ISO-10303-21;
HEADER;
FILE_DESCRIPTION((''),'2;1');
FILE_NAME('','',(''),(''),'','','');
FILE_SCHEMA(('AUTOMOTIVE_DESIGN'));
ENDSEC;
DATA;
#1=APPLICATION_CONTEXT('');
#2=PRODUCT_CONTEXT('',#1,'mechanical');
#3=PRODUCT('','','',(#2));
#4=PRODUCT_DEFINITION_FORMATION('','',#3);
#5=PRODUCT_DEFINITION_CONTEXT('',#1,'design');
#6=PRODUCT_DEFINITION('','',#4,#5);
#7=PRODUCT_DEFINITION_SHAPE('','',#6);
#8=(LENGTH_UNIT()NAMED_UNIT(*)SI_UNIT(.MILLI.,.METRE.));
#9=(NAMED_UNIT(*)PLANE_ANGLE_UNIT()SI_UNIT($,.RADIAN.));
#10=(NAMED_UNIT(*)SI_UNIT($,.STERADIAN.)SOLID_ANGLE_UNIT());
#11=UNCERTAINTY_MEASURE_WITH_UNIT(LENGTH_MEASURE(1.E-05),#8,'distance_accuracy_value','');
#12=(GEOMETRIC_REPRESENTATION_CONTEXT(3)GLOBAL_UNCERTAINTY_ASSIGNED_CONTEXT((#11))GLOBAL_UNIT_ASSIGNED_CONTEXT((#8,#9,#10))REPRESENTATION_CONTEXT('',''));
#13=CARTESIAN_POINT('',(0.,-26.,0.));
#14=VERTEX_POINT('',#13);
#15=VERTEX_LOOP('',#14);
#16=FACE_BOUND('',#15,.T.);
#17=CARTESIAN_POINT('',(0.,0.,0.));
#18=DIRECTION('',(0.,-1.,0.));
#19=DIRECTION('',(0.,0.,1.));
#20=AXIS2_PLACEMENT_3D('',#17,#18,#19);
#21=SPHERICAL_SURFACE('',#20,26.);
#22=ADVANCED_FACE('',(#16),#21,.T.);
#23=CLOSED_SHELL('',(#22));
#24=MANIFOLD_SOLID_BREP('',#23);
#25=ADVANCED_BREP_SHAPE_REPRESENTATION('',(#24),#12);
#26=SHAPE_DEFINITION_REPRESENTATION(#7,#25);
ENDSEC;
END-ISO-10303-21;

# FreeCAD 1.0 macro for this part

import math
import FreeCAD as App
import Part
import Sketcher
from FreeCAD import Vector

doc = App.newDocument("Part")
body = doc.addObject("PartDesign::Body", "Body")

# Sketch on YZ plane
sketch1 = doc.addObject("Sketcher::SketchObject", "Sketch")
body.addObject(sketch1)
sketch1.AttachmentSupport = (doc.YZ_Plane, [""])
sketch1.MapMode = "FlatFace"
sketch1.addGeometry([
    Part.LineSegment(Vector(26, 0, 0), Vector(-26, 0, 0)),
    Part.ArcOfCircle(Part.Circle(Vector(0, 0, 0), Vector(0, 0, 1), 26), math.radians(180), math.radians(360)),
], False)
sketch1.addConstraint([
    Sketcher.Constraint("Coincident", 0, 1, 1, 2),
    Sketcher.Constraint("Coincident", 1, 1, 0, 2),
    Sketcher.Constraint("Horizontal", 0),
    Sketcher.Constraint("Coincident", 1, 3, -1, 1),
    Sketcher.Constraint("PointOnObject", 0, 1, -1),
    Sketcher.Constraint("Radius", 1, 26.0),
])
revolution = doc.addObject("PartDesign::Revolution", "Revolution")
body.addObject(revolution)
revolution.Profile = sketch1
revolution.ReferenceAxis = (sketch1, ["H_Axis"])
revolution.Angle = 360

doc.recompute()
